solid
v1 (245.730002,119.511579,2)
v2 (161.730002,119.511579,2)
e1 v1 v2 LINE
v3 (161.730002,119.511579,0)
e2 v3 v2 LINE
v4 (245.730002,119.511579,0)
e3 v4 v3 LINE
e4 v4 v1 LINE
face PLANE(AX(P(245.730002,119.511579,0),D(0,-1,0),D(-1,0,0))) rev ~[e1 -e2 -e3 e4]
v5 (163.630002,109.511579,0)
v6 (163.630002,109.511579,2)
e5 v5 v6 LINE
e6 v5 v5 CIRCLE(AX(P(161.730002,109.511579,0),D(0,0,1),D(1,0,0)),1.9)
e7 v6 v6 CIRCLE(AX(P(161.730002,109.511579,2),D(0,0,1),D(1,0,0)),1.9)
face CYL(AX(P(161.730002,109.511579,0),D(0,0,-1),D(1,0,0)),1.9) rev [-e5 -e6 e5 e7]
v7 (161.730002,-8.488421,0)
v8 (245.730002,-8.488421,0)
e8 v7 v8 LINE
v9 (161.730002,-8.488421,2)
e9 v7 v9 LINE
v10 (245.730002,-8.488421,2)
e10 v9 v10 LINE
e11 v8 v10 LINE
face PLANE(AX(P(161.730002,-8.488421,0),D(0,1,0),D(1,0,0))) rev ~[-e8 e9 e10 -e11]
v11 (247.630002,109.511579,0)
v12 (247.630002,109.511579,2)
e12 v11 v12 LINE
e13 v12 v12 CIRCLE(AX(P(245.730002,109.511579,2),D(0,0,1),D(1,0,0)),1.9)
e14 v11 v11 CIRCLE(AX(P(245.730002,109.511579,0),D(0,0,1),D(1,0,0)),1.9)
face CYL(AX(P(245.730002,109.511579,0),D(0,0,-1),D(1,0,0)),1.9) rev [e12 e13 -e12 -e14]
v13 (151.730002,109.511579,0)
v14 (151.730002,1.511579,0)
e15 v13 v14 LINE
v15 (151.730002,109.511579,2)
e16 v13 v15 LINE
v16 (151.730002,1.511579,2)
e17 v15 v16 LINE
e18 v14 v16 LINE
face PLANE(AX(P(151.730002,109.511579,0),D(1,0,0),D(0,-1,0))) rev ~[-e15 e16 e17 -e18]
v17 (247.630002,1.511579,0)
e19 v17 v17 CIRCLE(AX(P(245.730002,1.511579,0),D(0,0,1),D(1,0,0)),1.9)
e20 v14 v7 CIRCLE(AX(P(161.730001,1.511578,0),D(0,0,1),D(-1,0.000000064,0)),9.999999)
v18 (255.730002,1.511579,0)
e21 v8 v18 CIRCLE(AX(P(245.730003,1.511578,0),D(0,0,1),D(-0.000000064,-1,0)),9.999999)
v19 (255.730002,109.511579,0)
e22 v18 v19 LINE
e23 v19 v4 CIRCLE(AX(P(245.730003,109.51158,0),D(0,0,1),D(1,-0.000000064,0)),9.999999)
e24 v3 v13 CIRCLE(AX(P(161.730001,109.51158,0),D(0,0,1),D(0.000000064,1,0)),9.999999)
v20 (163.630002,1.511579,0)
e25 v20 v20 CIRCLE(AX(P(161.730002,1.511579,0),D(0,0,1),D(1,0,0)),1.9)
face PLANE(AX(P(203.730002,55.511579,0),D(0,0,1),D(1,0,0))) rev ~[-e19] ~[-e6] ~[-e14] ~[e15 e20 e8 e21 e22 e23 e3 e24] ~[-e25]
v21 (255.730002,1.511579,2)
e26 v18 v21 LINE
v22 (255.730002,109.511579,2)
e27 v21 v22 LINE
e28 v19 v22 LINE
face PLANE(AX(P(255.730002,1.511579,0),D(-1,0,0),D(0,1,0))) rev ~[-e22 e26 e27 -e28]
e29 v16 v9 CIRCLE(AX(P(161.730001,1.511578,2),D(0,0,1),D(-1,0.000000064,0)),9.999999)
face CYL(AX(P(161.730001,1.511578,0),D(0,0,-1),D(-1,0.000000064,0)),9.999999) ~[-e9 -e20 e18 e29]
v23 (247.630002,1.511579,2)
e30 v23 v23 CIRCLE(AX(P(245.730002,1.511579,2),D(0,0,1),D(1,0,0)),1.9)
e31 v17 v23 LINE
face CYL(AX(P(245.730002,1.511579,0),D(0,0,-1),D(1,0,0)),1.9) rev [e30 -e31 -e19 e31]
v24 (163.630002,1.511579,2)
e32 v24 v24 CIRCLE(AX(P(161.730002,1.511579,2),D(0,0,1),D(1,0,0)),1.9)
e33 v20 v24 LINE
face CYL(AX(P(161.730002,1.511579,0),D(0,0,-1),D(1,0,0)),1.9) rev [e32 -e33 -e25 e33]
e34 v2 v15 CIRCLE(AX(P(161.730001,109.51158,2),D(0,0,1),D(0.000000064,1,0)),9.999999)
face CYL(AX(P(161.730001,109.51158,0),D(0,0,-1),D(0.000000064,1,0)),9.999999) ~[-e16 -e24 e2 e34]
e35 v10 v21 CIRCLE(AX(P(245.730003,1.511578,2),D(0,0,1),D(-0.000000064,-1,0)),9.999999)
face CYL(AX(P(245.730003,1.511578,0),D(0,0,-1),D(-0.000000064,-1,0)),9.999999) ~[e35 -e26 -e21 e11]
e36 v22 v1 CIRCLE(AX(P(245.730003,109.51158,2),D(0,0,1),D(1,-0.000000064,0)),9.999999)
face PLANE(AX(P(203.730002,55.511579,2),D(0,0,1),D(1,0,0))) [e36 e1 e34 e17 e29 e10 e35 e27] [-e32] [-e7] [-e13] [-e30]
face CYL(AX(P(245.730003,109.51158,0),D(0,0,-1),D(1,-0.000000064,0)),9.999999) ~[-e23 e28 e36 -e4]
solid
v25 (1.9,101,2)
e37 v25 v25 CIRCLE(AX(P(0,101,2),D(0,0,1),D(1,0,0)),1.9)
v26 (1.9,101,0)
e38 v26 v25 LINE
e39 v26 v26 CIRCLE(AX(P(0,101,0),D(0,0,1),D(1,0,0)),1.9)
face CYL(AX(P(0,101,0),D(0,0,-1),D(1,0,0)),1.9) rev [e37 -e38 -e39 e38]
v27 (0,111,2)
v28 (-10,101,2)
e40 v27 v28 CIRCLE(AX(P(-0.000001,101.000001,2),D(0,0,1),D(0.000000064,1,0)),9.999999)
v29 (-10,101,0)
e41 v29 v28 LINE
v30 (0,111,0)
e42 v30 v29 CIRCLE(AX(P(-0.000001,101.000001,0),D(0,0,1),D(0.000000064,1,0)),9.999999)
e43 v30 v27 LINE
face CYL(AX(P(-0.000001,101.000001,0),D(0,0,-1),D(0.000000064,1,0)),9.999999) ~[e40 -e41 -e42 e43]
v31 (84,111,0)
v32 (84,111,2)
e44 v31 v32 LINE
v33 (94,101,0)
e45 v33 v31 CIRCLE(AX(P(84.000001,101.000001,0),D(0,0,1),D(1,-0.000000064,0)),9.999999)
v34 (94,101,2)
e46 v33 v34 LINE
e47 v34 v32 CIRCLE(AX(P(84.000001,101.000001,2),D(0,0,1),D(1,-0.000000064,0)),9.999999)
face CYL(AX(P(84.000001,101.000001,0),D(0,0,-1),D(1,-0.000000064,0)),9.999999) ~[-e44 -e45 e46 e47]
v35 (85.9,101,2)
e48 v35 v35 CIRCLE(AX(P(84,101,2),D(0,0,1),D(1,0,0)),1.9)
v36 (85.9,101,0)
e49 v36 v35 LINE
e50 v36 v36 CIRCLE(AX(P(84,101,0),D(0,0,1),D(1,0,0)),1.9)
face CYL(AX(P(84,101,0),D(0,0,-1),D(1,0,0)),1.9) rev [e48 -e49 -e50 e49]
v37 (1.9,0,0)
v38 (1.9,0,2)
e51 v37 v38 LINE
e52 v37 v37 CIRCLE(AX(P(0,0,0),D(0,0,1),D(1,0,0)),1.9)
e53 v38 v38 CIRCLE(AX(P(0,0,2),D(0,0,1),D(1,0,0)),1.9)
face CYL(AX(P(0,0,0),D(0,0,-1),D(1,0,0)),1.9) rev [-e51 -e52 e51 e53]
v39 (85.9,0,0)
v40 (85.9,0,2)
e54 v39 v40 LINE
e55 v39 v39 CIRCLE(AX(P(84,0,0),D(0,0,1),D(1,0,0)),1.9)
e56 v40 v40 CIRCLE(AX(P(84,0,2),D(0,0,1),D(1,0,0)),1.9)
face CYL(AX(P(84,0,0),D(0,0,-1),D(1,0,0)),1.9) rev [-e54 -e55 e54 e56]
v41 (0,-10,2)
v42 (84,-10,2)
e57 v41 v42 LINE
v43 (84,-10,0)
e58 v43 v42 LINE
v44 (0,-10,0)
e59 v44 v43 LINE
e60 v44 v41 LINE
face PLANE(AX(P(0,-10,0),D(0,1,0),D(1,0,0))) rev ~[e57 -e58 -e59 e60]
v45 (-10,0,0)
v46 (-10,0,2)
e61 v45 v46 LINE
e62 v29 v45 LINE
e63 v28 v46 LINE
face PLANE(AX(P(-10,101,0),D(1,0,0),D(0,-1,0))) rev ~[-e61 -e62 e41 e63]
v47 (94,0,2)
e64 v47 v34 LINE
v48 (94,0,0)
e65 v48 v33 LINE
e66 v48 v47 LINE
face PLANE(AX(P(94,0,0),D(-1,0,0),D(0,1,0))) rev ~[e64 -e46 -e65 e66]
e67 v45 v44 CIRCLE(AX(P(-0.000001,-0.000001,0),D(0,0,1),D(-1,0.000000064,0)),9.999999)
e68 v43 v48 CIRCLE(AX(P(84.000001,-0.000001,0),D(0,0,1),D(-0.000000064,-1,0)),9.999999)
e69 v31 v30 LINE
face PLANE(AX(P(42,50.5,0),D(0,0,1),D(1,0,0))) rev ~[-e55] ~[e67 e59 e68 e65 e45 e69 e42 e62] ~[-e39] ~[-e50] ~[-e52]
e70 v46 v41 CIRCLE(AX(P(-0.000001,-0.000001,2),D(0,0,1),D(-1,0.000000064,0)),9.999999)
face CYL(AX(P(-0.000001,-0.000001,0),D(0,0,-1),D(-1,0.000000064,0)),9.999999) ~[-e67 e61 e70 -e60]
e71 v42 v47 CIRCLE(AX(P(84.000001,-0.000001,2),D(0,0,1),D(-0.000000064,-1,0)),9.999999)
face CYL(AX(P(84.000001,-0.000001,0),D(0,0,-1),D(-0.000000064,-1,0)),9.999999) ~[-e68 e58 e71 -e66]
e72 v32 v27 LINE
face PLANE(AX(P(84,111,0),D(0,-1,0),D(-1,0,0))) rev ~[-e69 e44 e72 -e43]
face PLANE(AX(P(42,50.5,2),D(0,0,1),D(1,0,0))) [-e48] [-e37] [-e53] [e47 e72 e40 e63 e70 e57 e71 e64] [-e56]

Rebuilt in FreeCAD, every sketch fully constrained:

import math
import FreeCAD as App
import Part
import Sketcher
Q = App.Units.Quantity

doc = App.newDocument("Part")
body = doc.addObject("PartDesign::Body", "Body")

# Sketch on XY plane
sketch1 = body.newObject("Sketcher::SketchObject", "Sketch")
sketch1.AttachmentSupport = (doc.getObject("XY_Plane"), [""])
sketch1.MapMode = "FlatFace"
sketch1.addGeometry([
    Part.LineSegment(App.Vector(84, 111, 0), App.Vector(0, 111, 0)),  # 0
    Part.ArcOfCircle(Part.Circle(App.Vector(-0.000001, 101.000001, 0), App.Vector(0, 0, 1), 9.999999), math.radians(89.999996), math.radians(180.000004)),  # 1
    Part.LineSegment(App.Vector(-10, 101, 0), App.Vector(-10, 0, 0)),  # 2
    Part.ArcOfCircle(Part.Circle(App.Vector(-0.000001, -0.000001, 0), App.Vector(0, 0, 1), 9.999999), math.radians(179.999996), math.radians(270.000004)),  # 3
    Part.LineSegment(App.Vector(0, -10, 0), App.Vector(84, -10, 0)),  # 4
    Part.ArcOfCircle(Part.Circle(App.Vector(84.000001, -0.000001, 0), App.Vector(0, 0, 1), 9.999999), math.radians(-90.000004), math.radians(0.000004)),  # 5
    Part.LineSegment(App.Vector(94, 0, 0), App.Vector(94, 101, 0)),  # 6
    Part.ArcOfCircle(Part.Circle(App.Vector(84.000001, 101.000001, 0), App.Vector(0, 0, 1), 9.999999), math.radians(-0.000004), math.radians(90.000004)),  # 7
    Part.Circle(App.Vector(0, 0, 0), App.Vector(0, 0, 1), 1.9),  # 8
    Part.Circle(App.Vector(84, 0, 0), App.Vector(0, 0, 1), 1.9),  # 9
    Part.Circle(App.Vector(0, 101, 0), App.Vector(0, 0, 1), 1.9),  # 10
    Part.Circle(App.Vector(84, 101, 0), App.Vector(0, 0, 1), 1.9),  # 11
], False)
sketch1.addConstraint([
    Sketcher.Constraint("Tangent", 0, 2, 1, 1),
    Sketcher.Constraint("Tangent", 1, 2, 2, 1),
    Sketcher.Constraint("Tangent", 2, 2, 3, 1),
    Sketcher.Constraint("Tangent", 3, 2, 4, 1),
    Sketcher.Constraint("Tangent", 4, 2, 5, 1),
    Sketcher.Constraint("Tangent", 5, 2, 6, 1),
    Sketcher.Constraint("Tangent", 6, 2, 7, 1),
    Sketcher.Constraint("Tangent", 7, 2, 0, 1),
    Sketcher.Constraint("Horizontal", 0),
    Sketcher.Constraint("Vertical", 2),
    Sketcher.Constraint("Horizontal", 4),
    Sketcher.Constraint("Vertical", 6),
    Sketcher.Constraint("Coincident", 3, 3, -1, 1),
    Sketcher.Constraint("Coincident", 8, 3, -1, 1),
    Sketcher.Constraint("Coincident", 9, 3, 5, 3),
    Sketcher.Constraint("Coincident", 10, 3, 1, 3),
    Sketcher.Constraint("Coincident", 11, 3, 7, 3),
    Sketcher.Constraint("Equal", 1, 3),
    Sketcher.Constraint("Equal", 3, 5),
    Sketcher.Constraint("Equal", 5, 7),
    Sketcher.Constraint("Equal", 8, 9),
    Sketcher.Constraint("Equal", 9, 10),
    Sketcher.Constraint("Equal", 10, 11),
    Sketcher.Constraint("Radius", 1, Q("9.999999 mm")),
    Sketcher.Constraint("Diameter", 8, Q("3.8 mm")),
    Sketcher.Constraint("DistanceX", 0, 2, 0, 1, Q("84 mm")),
    Sketcher.Constraint("DistanceY", 2, 2, 2, 1, Q("101 mm")),
])
pad1 = body.newObject("PartDesign::Pad", "Pad")
pad1.Profile = sketch1
pad1.Length = 2
body2 = doc.addObject("PartDesign::Body", "Body001")

# Sketch on XY plane
sketch2 = body2.newObject("Sketcher::SketchObject", "Sketch001")
sketch2.AttachmentSupport = (doc.getObject("XY_Plane001"), [""])
sketch2.MapMode = "FlatFace"
sketch2.addGeometry([
    Part.LineSegment(App.Vector(245.730002, 119.511579, 0), App.Vector(161.730002, 119.511579, 0)),  # 0
    Part.ArcOfCircle(Part.Circle(App.Vector(161.730001, 109.51158, 0), App.Vector(0, 0, 1), 9.999999), math.radians(89.999996), math.radians(180.000004)),  # 1
    Part.LineSegment(App.Vector(151.730002, 109.511579, 0), App.Vector(151.730002, 1.511579, 0)),  # 2
    Part.ArcOfCircle(Part.Circle(App.Vector(161.730001, 1.511578, 0), App.Vector(0, 0, 1), 9.999999), math.radians(179.999996), math.radians(270.000004)),  # 3
    Part.LineSegment(App.Vector(161.730002, -8.488421, 0), App.Vector(245.730002, -8.488421, 0)),  # 4
    Part.ArcOfCircle(Part.Circle(App.Vector(245.730003, 1.511578, 0), App.Vector(0, 0, 1), 9.999999), math.radians(-90.000004), math.radians(0.000004)),  # 5
    Part.LineSegment(App.Vector(255.730002, 1.511579, 0), App.Vector(255.730002, 109.511579, 0)),  # 6
    Part.ArcOfCircle(Part.Circle(App.Vector(245.730003, 109.51158, 0), App.Vector(0, 0, 1), 9.999999), math.radians(-0.000004), math.radians(90.000004)),  # 7
    Part.Circle(App.Vector(161.730002, 1.511579, 0), App.Vector(0, 0, 1), 1.9),  # 8
    Part.Circle(App.Vector(245.730002, 1.511579, 0), App.Vector(0, 0, 1), 1.9),  # 9
    Part.Circle(App.Vector(161.730002, 109.511579, 0), App.Vector(0, 0, 1), 1.9),  # 10
    Part.Circle(App.Vector(245.730002, 109.511579, 0), App.Vector(0, 0, 1), 1.9),  # 11
], False)
sketch2.addConstraint([
    Sketcher.Constraint("Tangent", 0, 2, 1, 1),
    Sketcher.Constraint("Tangent", 1, 2, 2, 1),
    Sketcher.Constraint("Tangent", 2, 2, 3, 1),
    Sketcher.Constraint("Tangent", 3, 2, 4, 1),
    Sketcher.Constraint("Tangent", 4, 2, 5, 1),
    Sketcher.Constraint("Tangent", 5, 2, 6, 1),
    Sketcher.Constraint("Tangent", 6, 2, 7, 1),
    Sketcher.Constraint("Tangent", 7, 2, 0, 1),
    Sketcher.Constraint("Horizontal", 0),
    Sketcher.Constraint("Vertical", 2),
    Sketcher.Constraint("Horizontal", 4),
    Sketcher.Constraint("Vertical", 6),
    Sketcher.Constraint("Coincident", 8, 3, 3, 3),
    Sketcher.Constraint("Coincident", 9, 3, 5, 3),
    Sketcher.Constraint("Coincident", 10, 3, 1, 3),
    Sketcher.Constraint("Coincident", 11, 3, 7, 3),
    Sketcher.Constraint("Equal", 1, 3),
    Sketcher.Constraint("Equal", 3, 5),
    Sketcher.Constraint("Equal", 5, 7),
    Sketcher.Constraint("Equal", 8, 9),
    Sketcher.Constraint("Equal", 9, 10),
    Sketcher.Constraint("Equal", 10, 11),
    Sketcher.Constraint("Radius", 1, Q("9.999999 mm")),
    Sketcher.Constraint("Diameter", 8, Q("3.8 mm")),
    Sketcher.Constraint("DistanceX", 0, 2, 0, 1, Q("84 mm")),
    Sketcher.Constraint("DistanceY", 2, 2, 2, 1, Q("108 mm")),
    Sketcher.Constraint("DistanceX", -1, 1, 1, 3, Q("161.730001 mm")),
    Sketcher.Constraint("DistanceY", -1, 1, 1, 3, Q("109.51158 mm")),
])
pad2 = body2.newObject("PartDesign::Pad", "Pad001")
pad2.Profile = sketch2
pad2.Length = 2

doc.recompute()
